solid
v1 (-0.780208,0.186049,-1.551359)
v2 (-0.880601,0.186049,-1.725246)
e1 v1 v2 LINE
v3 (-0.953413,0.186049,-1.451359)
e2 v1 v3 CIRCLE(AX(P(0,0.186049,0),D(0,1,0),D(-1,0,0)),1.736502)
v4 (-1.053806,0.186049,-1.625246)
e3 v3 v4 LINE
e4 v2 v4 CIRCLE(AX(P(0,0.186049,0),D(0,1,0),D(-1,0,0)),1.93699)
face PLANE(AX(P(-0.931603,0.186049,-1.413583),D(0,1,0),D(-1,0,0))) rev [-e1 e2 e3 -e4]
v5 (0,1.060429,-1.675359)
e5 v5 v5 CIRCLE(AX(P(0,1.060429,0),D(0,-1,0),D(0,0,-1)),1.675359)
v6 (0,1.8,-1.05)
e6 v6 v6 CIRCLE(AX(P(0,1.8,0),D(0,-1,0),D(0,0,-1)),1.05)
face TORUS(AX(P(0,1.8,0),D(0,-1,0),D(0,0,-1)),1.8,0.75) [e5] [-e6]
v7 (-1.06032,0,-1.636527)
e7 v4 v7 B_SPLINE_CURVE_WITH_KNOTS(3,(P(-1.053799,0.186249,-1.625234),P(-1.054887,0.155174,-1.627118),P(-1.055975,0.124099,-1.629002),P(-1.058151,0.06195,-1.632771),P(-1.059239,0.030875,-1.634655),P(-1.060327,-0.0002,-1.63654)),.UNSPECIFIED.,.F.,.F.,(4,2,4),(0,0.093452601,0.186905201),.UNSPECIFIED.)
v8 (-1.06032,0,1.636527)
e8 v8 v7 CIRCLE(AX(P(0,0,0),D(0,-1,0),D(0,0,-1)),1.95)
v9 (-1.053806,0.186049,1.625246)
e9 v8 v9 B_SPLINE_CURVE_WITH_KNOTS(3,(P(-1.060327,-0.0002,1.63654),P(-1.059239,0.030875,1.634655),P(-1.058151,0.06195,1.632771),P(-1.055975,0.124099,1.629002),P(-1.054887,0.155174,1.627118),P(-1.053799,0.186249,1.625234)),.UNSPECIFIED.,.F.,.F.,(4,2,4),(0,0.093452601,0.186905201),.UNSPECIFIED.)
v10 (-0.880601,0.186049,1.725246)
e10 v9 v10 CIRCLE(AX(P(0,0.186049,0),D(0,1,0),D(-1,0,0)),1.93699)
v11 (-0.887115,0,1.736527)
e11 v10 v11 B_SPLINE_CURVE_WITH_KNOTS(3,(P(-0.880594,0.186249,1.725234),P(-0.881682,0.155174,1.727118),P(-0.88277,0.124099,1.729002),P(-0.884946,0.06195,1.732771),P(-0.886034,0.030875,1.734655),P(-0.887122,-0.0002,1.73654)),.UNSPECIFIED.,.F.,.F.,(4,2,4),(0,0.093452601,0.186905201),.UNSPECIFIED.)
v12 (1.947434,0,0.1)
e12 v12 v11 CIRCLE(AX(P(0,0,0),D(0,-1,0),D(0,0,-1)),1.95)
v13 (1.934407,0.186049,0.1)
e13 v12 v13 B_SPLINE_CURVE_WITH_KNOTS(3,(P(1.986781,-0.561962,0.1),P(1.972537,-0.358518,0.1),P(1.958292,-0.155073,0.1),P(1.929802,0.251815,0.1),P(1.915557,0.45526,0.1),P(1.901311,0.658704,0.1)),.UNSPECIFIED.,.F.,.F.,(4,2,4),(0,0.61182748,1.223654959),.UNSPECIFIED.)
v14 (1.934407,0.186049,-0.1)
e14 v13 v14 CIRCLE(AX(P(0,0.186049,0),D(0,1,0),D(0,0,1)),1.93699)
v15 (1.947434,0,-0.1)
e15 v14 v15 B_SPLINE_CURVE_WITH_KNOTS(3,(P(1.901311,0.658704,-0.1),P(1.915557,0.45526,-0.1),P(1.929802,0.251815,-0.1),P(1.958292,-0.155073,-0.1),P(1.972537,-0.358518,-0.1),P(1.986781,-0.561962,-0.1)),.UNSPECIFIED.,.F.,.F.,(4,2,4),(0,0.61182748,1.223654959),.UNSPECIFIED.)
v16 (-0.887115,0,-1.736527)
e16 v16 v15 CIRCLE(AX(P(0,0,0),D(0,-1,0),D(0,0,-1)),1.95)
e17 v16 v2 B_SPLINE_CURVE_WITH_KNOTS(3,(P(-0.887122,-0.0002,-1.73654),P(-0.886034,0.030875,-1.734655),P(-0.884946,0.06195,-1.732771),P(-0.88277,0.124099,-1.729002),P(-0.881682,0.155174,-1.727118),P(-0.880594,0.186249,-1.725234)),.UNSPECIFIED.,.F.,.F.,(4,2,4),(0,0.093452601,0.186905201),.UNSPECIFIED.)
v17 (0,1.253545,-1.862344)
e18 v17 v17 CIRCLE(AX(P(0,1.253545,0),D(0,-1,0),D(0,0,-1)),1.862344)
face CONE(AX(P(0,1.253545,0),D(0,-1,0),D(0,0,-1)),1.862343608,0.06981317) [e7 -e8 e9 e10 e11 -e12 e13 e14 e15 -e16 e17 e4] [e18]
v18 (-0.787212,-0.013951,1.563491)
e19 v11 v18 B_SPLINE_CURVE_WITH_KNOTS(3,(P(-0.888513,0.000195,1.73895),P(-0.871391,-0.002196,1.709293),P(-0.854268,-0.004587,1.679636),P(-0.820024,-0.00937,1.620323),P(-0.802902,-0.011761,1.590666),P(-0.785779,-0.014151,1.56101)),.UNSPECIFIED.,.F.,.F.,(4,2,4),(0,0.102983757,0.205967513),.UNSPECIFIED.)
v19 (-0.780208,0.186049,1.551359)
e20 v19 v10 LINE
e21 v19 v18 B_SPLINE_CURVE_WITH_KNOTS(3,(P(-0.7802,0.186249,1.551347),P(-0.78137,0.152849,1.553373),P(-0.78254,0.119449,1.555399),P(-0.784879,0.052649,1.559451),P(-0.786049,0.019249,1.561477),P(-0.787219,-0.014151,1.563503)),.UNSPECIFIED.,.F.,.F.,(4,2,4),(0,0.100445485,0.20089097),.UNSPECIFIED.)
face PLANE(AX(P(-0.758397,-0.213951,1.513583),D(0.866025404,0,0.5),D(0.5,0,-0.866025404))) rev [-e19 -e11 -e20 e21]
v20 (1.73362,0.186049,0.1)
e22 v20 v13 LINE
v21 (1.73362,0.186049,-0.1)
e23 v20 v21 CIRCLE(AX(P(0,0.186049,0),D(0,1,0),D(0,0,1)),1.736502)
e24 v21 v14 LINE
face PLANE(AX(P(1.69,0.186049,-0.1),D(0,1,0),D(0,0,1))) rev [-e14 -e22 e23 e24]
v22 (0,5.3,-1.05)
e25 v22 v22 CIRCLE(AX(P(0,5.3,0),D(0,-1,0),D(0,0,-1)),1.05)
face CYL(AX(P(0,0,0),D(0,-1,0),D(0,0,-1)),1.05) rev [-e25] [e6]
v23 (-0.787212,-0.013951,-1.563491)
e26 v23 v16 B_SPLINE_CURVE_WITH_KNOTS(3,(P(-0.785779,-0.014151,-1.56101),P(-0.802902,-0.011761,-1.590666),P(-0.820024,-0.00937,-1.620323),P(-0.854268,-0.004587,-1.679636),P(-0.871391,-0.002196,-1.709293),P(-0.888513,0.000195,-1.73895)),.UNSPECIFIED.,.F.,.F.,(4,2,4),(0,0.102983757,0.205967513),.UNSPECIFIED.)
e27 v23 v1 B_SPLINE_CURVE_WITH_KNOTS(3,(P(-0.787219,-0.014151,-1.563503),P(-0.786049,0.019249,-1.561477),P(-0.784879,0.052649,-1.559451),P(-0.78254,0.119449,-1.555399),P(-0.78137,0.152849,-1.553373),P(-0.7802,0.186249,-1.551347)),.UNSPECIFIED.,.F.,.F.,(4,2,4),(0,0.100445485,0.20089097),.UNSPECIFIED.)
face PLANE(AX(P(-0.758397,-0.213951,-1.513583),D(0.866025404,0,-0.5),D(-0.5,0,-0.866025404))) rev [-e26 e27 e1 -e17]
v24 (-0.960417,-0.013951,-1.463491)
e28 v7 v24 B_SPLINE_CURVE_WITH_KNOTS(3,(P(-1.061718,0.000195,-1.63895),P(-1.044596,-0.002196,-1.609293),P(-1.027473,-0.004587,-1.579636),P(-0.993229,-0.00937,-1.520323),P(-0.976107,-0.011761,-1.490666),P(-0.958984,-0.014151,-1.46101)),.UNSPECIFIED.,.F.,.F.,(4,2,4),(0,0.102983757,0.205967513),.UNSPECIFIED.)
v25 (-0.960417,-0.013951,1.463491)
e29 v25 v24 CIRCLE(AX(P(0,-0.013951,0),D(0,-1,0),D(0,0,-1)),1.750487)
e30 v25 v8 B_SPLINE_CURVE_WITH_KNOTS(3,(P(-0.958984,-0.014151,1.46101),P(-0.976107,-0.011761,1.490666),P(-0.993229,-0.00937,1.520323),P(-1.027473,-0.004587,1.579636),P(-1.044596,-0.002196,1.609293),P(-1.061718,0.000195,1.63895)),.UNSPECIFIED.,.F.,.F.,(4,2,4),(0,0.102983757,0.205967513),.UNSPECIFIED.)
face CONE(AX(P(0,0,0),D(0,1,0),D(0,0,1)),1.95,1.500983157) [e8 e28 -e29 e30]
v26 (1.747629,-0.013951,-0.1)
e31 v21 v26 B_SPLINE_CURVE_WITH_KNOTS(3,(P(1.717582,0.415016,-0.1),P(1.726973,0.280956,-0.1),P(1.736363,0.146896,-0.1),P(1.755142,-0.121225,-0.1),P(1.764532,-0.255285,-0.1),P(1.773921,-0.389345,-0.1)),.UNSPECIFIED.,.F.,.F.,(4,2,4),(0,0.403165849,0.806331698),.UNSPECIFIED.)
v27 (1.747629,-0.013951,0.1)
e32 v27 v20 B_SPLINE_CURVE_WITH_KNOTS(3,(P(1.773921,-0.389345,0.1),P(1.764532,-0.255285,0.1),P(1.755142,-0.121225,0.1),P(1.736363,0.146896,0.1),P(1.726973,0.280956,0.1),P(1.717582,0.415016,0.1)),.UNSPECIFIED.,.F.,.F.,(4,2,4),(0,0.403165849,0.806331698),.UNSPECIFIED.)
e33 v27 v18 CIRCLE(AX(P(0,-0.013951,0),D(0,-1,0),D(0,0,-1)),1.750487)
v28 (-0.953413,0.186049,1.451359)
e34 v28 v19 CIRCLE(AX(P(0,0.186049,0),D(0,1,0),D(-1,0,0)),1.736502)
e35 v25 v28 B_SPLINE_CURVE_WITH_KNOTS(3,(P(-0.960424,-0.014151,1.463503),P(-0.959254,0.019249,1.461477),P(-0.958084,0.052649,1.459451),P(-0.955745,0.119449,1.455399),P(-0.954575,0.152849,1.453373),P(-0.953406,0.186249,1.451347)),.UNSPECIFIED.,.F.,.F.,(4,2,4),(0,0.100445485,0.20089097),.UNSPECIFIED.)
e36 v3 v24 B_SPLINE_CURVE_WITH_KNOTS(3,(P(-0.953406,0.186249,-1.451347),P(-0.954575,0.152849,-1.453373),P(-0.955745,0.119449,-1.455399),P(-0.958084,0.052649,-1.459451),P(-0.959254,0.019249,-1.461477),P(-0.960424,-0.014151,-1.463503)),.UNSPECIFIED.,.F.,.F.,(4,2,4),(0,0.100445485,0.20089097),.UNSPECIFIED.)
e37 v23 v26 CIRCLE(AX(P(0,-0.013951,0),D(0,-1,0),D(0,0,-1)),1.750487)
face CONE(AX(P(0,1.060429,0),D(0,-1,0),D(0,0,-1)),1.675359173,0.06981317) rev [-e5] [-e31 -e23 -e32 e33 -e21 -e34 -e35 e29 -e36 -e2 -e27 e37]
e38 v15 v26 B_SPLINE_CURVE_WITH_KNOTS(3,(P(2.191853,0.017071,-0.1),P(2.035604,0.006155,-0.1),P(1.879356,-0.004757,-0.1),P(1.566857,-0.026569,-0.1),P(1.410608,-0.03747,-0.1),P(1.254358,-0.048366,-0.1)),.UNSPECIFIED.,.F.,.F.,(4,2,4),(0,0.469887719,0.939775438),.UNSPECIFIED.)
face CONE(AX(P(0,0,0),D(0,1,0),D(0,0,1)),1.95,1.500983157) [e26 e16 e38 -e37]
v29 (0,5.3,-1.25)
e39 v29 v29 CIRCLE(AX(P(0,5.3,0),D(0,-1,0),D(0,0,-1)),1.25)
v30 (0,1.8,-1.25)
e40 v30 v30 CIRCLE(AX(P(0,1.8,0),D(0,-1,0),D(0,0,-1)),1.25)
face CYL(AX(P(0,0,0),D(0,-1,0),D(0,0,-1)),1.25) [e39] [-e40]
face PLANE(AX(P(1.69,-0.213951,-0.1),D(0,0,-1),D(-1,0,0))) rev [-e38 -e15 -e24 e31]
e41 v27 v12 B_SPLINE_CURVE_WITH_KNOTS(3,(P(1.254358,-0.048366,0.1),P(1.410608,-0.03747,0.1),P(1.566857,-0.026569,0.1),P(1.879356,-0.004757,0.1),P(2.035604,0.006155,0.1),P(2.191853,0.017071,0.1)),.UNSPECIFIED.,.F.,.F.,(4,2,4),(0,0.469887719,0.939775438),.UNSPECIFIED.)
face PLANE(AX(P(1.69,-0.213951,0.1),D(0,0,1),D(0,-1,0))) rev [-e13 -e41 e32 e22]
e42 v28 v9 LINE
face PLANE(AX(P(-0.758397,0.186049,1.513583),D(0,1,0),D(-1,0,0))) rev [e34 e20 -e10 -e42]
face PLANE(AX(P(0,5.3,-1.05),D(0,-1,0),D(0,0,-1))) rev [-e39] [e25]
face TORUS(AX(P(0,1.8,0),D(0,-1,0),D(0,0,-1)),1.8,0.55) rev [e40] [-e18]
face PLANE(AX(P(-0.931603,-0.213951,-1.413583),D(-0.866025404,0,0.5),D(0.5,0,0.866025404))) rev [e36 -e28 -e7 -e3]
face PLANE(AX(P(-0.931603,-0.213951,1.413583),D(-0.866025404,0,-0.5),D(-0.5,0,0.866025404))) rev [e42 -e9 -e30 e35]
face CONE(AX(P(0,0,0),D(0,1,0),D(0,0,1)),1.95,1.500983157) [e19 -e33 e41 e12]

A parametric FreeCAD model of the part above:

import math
import FreeCAD as App
import Part
import Sketcher
Q = App.Units.Quantity

doc = App.newDocument("Part")
body = doc.addObject("PartDesign::Body", "Body")

sketch1 = body.newObject("Sketcher::SketchObject", "Sketch")
sketch1.AttachmentSupport = (doc.getObject("YZ_Plane"), [""])
sketch1.MapMode = "FlatFace"
sketch1.addGeometry([
    Part.LineSegment(App.Vector(1.8, -1.25, 0), App.Vector(5.3, -1.25, 0)),
    Part.LineSegment(App.Vector(5.3, -1.25, 0), App.Vector(5.3, -1.05, 0)),
    Part.LineSegment(App.Vector(5.3, -1.05, 0), App.Vector(1.8, -1.05, 0)),
    Part.ArcOfCircle(Part.Circle(App.Vector(1.8, -1.8, 0), App.Vector(0, 0, 1), 0.75), math.radians(90), math.radians(170)),
    Part.LineSegment(App.Vector(1.06, -1.68, 0), App.Vector(-0.01, -1.75, 0)),
    Part.LineSegment(App.Vector(-0.01, -1.75, 0), App.Vector(0, -1.95, 0)),
    Part.LineSegment(App.Vector(0, -1.95, 0), App.Vector(1.25, -1.86, 0)),
    Part.ArcOfCircle(Part.Circle(App.Vector(1.8, -1.8, 0), App.Vector(0, 0, 1), 0.55), math.radians(90), math.radians(187)),
], False)
sketch1.addConstraint([
    Sketcher.Constraint("Coincident", 0, 2, 1, 1),
    Sketcher.Constraint("Coincident", 1, 2, 2, 1),
    Sketcher.Constraint("Tangent", 2, 2, 3, 1),
    Sketcher.Constraint("Coincident", 3, 2, 4, 1),
    Sketcher.Constraint("Coincident", 4, 2, 5, 1),
    Sketcher.Constraint("Coincident", 5, 2, 6, 1),
    Sketcher.Constraint("Coincident", 6, 2, 7, 2),
    Sketcher.Constraint("Tangent", 7, 1, 0, 1),
    Sketcher.Constraint("Horizontal", 0),
    Sketcher.Constraint("Vertical", 1),
    Sketcher.Constraint("Horizontal", 2),
    Sketcher.Constraint("Coincident", 7, 3, 3, 3),
    Sketcher.Constraint("PointOnObject", 5, 2, -2),
    Sketcher.Constraint("Perpendicular", 4, 5),
    Sketcher.Constraint("Perpendicular", 5, 6),
    Sketcher.Constraint("Angle", 4, Q("-176 deg")),
    Sketcher.Constraint("Radius", 3, 0.75),
    Sketcher.Constraint("Radius", 7, 0.55),
    Sketcher.Constraint("DistanceX", 0, 1, 0, 2, 3.5),
    Sketcher.Constraint("Distance", 5, 0.2),
    Sketcher.Constraint("DistanceX", -1, 1, 3, 3, 1.8),
    Sketcher.Constraint("DistanceY", 3, 3, -1, 1, 1.8),
    Sketcher.Constraint("DistanceY", 5, 2, 2, 2, 0.9),
])
revolution = body.newObject("PartDesign::Revolution", "Revolution")
revolution.Profile = sketch1
revolution.ReferenceAxis = (sketch1, ["H_Axis"])
revolution.Angle = 360

sketch2 = body.newObject("Sketcher::SketchObject", "Sketch001")
sketch2.AttachmentSupport = (doc.getObject("YZ_Plane"), [""])
sketch2.MapMode = "FlatFace"
sketch2.AttachmentOffset = App.Placement(App.Vector(0, 0, 1.95), App.Rotation())
sketch2.addGeometry([
    Part.LineSegment(App.Vector(0.19, 0.1, 0), App.Vector(-0.21, 0.1, 0)),
    Part.LineSegment(App.Vector(-0.21, 0.1, 0), App.Vector(-0.21, -0.1, 0)),
    Part.LineSegment(App.Vector(-0.21, -0.1, 0), App.Vector(0.19, -0.1, 0)),
    Part.LineSegment(App.Vector(0.19, -0.1, 0), App.Vector(0.19, 0.1, 0)),
], False)
sketch2.addConstraint([
    Sketcher.Constraint("Coincident", 0, 2, 1, 1),
    Sketcher.Constraint("Coincident", 1, 2, 2, 1),
    Sketcher.Constraint("Coincident", 2, 2, 3, 1),
    Sketcher.Constraint("Coincident", 3, 2, 0, 1),
    Sketcher.Constraint("Horizontal", 0),
    Sketcher.Constraint("Vertical", 1),
    Sketcher.Constraint("Horizontal", 2),
    Sketcher.Constraint("Vertical", 3),
    Sketcher.Constraint("DistanceX", 0, 2, 0, 1, 0.4),
    Sketcher.Constraint("DistanceY", 1, 2, 1, 1, 0.2),
    Sketcher.Constraint("DistanceY", -1, 1, 0, 2, 0.1),
    Sketcher.Constraint("DistanceX", 0, 2, -1, 1, 0.213951),
])
pocket1 = body.newObject("PartDesign::Pocket", "Pocket")
pocket1.Profile = sketch2
pocket1.Length = 0.26
doc.recompute()

polarpattern = body.newObject("PartDesign::PolarPattern", "PolarPattern")
polarpattern.Originals = [pocket1]
polarpattern.Axis = (doc.getObject("Y_Axis"), [""])
polarpattern.Angle = 360
polarpattern.Occurrences = 3
body.Tip = polarpattern

doc.recompute()
